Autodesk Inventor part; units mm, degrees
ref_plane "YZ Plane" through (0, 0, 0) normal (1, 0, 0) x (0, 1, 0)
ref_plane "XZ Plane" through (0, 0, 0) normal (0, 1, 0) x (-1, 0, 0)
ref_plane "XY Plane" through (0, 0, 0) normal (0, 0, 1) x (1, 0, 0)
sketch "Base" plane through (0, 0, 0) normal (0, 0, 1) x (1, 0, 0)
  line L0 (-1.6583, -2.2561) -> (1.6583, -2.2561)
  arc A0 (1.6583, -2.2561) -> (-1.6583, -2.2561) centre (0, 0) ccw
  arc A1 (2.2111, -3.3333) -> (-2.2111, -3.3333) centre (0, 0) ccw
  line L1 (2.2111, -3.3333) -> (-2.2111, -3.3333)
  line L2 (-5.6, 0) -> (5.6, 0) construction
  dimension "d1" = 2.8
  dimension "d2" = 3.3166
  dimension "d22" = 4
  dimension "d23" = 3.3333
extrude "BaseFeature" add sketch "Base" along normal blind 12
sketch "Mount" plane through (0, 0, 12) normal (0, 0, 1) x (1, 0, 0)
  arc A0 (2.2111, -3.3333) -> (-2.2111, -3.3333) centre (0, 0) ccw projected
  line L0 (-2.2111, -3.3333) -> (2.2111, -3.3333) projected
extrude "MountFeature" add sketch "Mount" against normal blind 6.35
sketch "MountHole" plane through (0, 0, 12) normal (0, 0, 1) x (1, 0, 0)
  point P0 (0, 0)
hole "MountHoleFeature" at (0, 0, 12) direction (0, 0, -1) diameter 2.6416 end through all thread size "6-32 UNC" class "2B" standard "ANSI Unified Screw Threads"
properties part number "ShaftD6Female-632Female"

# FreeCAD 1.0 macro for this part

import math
import FreeCAD as App
import Part
import Sketcher

V = App.Vector
Q = App.Units.Quantity

doc = App.newDocument("Part")
params = doc.addObject("Spreadsheet::Sheet", "Params")
for row, (alias, value) in enumerate([
    ("sketch1_radius", "4 mm"),
    ("sketch1_radius2", "2.8 mm"),
    ("pad1_length", "12 mm"),
    ("sketch2_radius", "4 mm"),
    ("pad2_length", "6.35 mm"),
    ("hole_diameter", "2.6416 mm"),
], start=1):
    params.set(f"A{row}", alias)
    params.set(f"B{row}", "=" + value)
    params.setAlias(f"B{row}", alias)

body = doc.addObject("PartDesign::Body", "Body")

# Sketch on XY plane
sketch1 = body.newObject("Sketcher::SketchObject", "Sketch")
sketch1.AttachmentSupport = (doc.getObject("XY_Plane"), [""])
sketch1.MapMode = "FlatFace"
sketch1.addGeometry([
    Part.LineSegment(V(-2.2, -3.3, 0), V(2.2, -3.3, 0)),
    Part.ArcOfCircle(Part.Circle(V(0, 0, 0), V(0, 0, 1), 4), math.radians(-56), math.radians(236)),
    Part.LineSegment(V(1.7, -2.3, 0), V(-1.7, -2.3, 0)),
    Part.ArcOfCircle(Part.Circle(V(0, 0, 0), V(0, 0, 1), 2.8), math.radians(-54), math.radians(234)),
], False)
sketch1.addConstraint([
    Sketcher.Constraint("Coincident", 0, 1, 1, 2),
    Sketcher.Constraint("Coincident", 1, 1, 0, 2),
    Sketcher.Constraint("Coincident", 2, 1, 3, 1),
    Sketcher.Constraint("Coincident", 3, 2, 2, 2),
    Sketcher.Constraint("Horizontal", 0),
    Sketcher.Constraint("Horizontal", 2),
    Sketcher.Constraint("Coincident", 1, 3, -1, 1),
    Sketcher.Constraint("Coincident", 3, 3, -1, 1),
    Sketcher.Constraint("Radius", 1, Q("4 mm")),
    Sketcher.Constraint("Radius", 3, Q("2.8 mm")),
    Sketcher.Constraint("DistanceX", 2, 2, 2, 1, Q("3.3166 mm")),
    Sketcher.Constraint("DistanceY", 0, 1, -1, 1, Q("3.3333 mm")),
])
sketch1.setExpression("Constraints[8]", "Params.sketch1_radius")
sketch1.setExpression("Constraints[9]", "Params.sketch1_radius2")
pad1 = body.newObject("PartDesign::Pad", "Pad")
pad1.Profile = sketch1
pad1.setExpression("Length", "Params.pad1_length")

# Sketch on XY plane
sketch2 = body.newObject("Sketcher::SketchObject", "Sketch001")
sketch2.AttachmentSupport = (doc.getObject("XY_Plane"), [""])
sketch2.MapMode = "FlatFace"
sketch2.AttachmentOffset = App.Placement(V(0, 0, 12), App.Rotation())
sketch2.addGeometry([
    Part.LineSegment(V(-2.2, -3.3, 0), V(2.2, -3.3, 0)),
    Part.ArcOfCircle(Part.Circle(V(0, 0, 0), V(0, 0, 1), 4), math.radians(-56), math.radians(236)),
], False)
sketch2.addConstraint([
    Sketcher.Constraint("Coincident", 0, 1, 1, 2),
    Sketcher.Constraint("Coincident", 1, 1, 0, 2),
    Sketcher.Constraint("Horizontal", 0),
    Sketcher.Constraint("Coincident", 1, 3, -1, 1),
    Sketcher.Constraint("Radius", 1, Q("4 mm")),
    Sketcher.Constraint("DistanceX", 0, 1, 0, 2, Q("4.4222 mm")),
])
sketch2.setExpression("Constraints[4]", "Params.sketch2_radius")
pad2 = body.newObject("PartDesign::Pad", "Pad001")
pad2.Profile = sketch2
pad2.setExpression("Length", "Params.pad2_length")
pad2.Reversed = True

# Sketch on XY plane
sketch3 = body.newObject("Sketcher::SketchObject", "Sketch002")
sketch3.AttachmentSupport = (doc.getObject("XY_Plane"), [""])
sketch3.MapMode = "FlatFace"
sketch3.AttachmentOffset = App.Placement(V(0, 0, 12), App.Rotation())
sketch3.addGeometry(Part.Circle(V(0, 0, 0), V(0, 0, 1), 1.3), False)
sketch3.addConstraint([
    Sketcher.Constraint("Coincident", 0, 3, -1, 1),
    Sketcher.Constraint("Diameter", 0, Q("2.6416 mm")),
])
doc.recompute()
hole = body.newObject("PartDesign::Hole", "Hole")
hole.Profile = sketch3
hole.ThreadType = "None"
hole.setExpression("Diameter", "Params.hole_diameter")
hole.DepthType = "ThroughAll"

doc.recompute()
